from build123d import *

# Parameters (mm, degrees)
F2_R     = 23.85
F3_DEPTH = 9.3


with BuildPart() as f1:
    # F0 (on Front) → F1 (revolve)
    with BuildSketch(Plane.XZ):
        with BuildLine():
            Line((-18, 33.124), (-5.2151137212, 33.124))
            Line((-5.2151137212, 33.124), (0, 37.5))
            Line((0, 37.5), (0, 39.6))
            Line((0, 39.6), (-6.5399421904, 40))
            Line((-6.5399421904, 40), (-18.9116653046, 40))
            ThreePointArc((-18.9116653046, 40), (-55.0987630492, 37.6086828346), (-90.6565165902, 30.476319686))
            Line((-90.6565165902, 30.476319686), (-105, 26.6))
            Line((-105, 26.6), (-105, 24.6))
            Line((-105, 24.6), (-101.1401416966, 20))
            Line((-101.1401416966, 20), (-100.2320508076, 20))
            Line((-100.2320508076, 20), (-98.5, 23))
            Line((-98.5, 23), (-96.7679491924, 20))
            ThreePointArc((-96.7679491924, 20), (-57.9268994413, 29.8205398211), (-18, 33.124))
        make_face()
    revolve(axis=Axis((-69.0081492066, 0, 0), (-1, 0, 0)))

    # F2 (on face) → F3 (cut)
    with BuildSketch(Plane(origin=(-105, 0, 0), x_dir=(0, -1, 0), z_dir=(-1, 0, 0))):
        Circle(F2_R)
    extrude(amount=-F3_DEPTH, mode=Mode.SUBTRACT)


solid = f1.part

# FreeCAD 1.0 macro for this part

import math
import FreeCAD as App
import Part
import Sketcher
from FreeCAD import Vector
Q = App.Units.Quantity

doc = App.newDocument("Part")
params = doc.addObject("Spreadsheet::Sheet", "Params")
for row, (alias, value) in enumerate([
    ("sketch1_radius", "275 mm"),
    ("sketch1_height", "2 mm"),
    ("sketch1_height2", "2.1 mm"),
    ("revolution_angle", "360 deg"),
    ("sketch2_diameter", "47.7 mm"),
    ("pocket1_length", "9.3 mm"),
], start=1):
    params.set(f"A{row}", alias)
    params.set(f"B{row}", "=" + value)
    params.setAlias(f"B{row}", alias)

body = doc.addObject("PartDesign::Body", "Body")

sketch1 = body.newObject("Sketcher::SketchObject", "Sketch")
sketch1.AttachmentSupport = (doc.getObject("XZ_Plane"), [""])
sketch1.MapMode = "FlatFace"
sketch1.addGeometry([
    Part.LineSegment(Vector(-18, 33.1, 0), Vector(-5.2, 33.1, 0)),
    Part.LineSegment(Vector(-5.2, 33.1, 0), Vector(0, 37.5, 0)),
    Part.LineSegment(Vector(0, 37.5, 0), Vector(0, 39.6, 0)),
    Part.LineSegment(Vector(0, 39.6, 0), Vector(-6.5, 40, 0)),
    Part.LineSegment(Vector(-6.5, 40, 0), Vector(-18.9, 40, 0)),
    Part.ArcOfCircle(Part.Circle(Vector(-18.9, -235, 0), Vector(0, 0, 1), 275), math.radians(90), math.radians(105.12)),
    Part.LineSegment(Vector(-90.7, 30.5, 0), Vector(-105, 26.6, 0)),
    Part.LineSegment(Vector(-105, 26.6, 0), Vector(-105, 24.6, 0)),
    Part.LineSegment(Vector(-105, 24.6, 0), Vector(-101.1, 20, 0)),
    Part.LineSegment(Vector(-101.1, 20, 0), Vector(-100.2, 20, 0)),
    Part.LineSegment(Vector(-100.2, 20, 0), Vector(-98.5, 23, 0)),
    Part.LineSegment(Vector(-98.5, 23, 0), Vector(-96.8, 20, 0)),
    Part.ArcOfCircle(Part.Circle(Vector(-18, -209.8, 0), Vector(0, 0, 1), 242.9), math.radians(90), math.radians(108.92)),
], False)
sketch1.addConstraint([
    Sketcher.Constraint("Coincident", 0, 2, 1, 1),
    Sketcher.Constraint("Coincident", 1, 2, 2, 1),
    Sketcher.Constraint("Coincident", 2, 2, 3, 1),
    Sketcher.Constraint("Coincident", 3, 2, 4, 1),
    Sketcher.Constraint("Tangent", 4, 2, 5, 1),
    Sketcher.Constraint("Tangent", 5, 2, 6, 1),
    Sketcher.Constraint("Coincident", 6, 2, 7, 1),
    Sketcher.Constraint("Coincident", 7, 2, 8, 1),
    Sketcher.Constraint("Coincident", 8, 2, 9, 1),
    Sketcher.Constraint("Coincident", 9, 2, 10, 1),
    Sketcher.Constraint("Coincident", 10, 2, 11, 1),
    Sketcher.Constraint("Coincident", 11, 2, 12, 2),
    Sketcher.Constraint("Tangent", 12, 1, 0, 1),
    Sketcher.Constraint("Horizontal", 0),
    Sketcher.Constraint("Vertical", 2),
    Sketcher.Constraint("Horizontal", 4),
    Sketcher.Constraint("Vertical", 7),
    Sketcher.Constraint("Horizontal", 9),
    Sketcher.Constraint("PointOnObject", 1, 2, -2),
    Sketcher.Constraint("Perpendicular", 1, 8),
    Sketcher.Constraint("Horizontal", 9, 2, 11, 2),
    Sketcher.Constraint("Equal", 10, 11),
    Sketcher.Constraint("Radius", 5, Q("275 mm")),
    Sketcher.Constraint("DistanceY", 7, 2, 7, 1, Q("2 mm")),
    Sketcher.Constraint("Angle", 1, Q("40 deg")),
    Sketcher.Constraint("Angle", 10, Q("60 deg")),
    Sketcher.Constraint("DistanceY", 2, 1, 2, 2, Q("2.1 mm")),
    Sketcher.Constraint("DistanceY", 5, 3, -1, 1, Q("235 mm")),
    Sketcher.Constraint("DistanceX", 12, 3, -1, 1, Q("18 mm")),
    Sketcher.Constraint("DistanceX", 6, 2, -1, 1, Q("105 mm")),
    Sketcher.Constraint("DistanceY", -1, 1, 8, 2, Q("20 mm")),
    Sketcher.Constraint("DistanceY", -1, 1, 10, 2, Q("23 mm")),
    Sketcher.Constraint("Angle", 3, Q("176.5 deg")),
    Sketcher.Constraint("DistanceY", -1, 1, 1, 2, Q("37.5 mm")),
    Sketcher.Constraint("DistanceY", -1, 1, 6, 2, Q("26.6 mm")),
    Sketcher.Constraint("DistanceX", 10, 2, -1, 1, Q("98.5 mm")),
    Sketcher.Constraint("DistanceY", -1, 1, 0, 2, Q("33.124 mm")),
    Sketcher.Constraint("Distance", 6, Q("14.858041 mm")),
])
sketch1.setExpression("Constraints[22]", "Params.sketch1_radius")
sketch1.setExpression("Constraints[23]", "Params.sketch1_height")
sketch1.setExpression("Constraints[26]", "Params.sketch1_height2")
revolution = body.newObject("PartDesign::Revolution", "Revolution")
revolution.Profile = sketch1
revolution.ReferenceAxis = (sketch1, ["H_Axis"])
revolution.setExpression("Angle", "Params.revolution_angle")

sketch2 = body.newObject("Sketcher::SketchObject", "Sketch001")
sketch2.AttachmentSupport = (doc.getObject("YZ_Plane"), [""])
sketch2.MapMode = "FlatFace"
sketch2.AttachmentOffset = App.Placement(Vector(0, 0, -105), App.Rotation())
sketch2.addGeometry(Part.Circle(Vector(0, 0, 0), Vector(0, 0, 1), 24), False)
sketch2.addConstraint([
    Sketcher.Constraint("Coincident", 0, 3, -1, 1),
    Sketcher.Constraint("Diameter", 0, Q("47.7 mm")),
])
sketch2.setExpression("Constraints[1]", "Params.sketch2_diameter")
pocket1 = body.newObject("PartDesign::Pocket", "Pocket")
pocket1.Profile = sketch2
pocket1.setExpression("Length", "Params.pocket1_length")
pocket1.Reversed = True

doc.recompute()
